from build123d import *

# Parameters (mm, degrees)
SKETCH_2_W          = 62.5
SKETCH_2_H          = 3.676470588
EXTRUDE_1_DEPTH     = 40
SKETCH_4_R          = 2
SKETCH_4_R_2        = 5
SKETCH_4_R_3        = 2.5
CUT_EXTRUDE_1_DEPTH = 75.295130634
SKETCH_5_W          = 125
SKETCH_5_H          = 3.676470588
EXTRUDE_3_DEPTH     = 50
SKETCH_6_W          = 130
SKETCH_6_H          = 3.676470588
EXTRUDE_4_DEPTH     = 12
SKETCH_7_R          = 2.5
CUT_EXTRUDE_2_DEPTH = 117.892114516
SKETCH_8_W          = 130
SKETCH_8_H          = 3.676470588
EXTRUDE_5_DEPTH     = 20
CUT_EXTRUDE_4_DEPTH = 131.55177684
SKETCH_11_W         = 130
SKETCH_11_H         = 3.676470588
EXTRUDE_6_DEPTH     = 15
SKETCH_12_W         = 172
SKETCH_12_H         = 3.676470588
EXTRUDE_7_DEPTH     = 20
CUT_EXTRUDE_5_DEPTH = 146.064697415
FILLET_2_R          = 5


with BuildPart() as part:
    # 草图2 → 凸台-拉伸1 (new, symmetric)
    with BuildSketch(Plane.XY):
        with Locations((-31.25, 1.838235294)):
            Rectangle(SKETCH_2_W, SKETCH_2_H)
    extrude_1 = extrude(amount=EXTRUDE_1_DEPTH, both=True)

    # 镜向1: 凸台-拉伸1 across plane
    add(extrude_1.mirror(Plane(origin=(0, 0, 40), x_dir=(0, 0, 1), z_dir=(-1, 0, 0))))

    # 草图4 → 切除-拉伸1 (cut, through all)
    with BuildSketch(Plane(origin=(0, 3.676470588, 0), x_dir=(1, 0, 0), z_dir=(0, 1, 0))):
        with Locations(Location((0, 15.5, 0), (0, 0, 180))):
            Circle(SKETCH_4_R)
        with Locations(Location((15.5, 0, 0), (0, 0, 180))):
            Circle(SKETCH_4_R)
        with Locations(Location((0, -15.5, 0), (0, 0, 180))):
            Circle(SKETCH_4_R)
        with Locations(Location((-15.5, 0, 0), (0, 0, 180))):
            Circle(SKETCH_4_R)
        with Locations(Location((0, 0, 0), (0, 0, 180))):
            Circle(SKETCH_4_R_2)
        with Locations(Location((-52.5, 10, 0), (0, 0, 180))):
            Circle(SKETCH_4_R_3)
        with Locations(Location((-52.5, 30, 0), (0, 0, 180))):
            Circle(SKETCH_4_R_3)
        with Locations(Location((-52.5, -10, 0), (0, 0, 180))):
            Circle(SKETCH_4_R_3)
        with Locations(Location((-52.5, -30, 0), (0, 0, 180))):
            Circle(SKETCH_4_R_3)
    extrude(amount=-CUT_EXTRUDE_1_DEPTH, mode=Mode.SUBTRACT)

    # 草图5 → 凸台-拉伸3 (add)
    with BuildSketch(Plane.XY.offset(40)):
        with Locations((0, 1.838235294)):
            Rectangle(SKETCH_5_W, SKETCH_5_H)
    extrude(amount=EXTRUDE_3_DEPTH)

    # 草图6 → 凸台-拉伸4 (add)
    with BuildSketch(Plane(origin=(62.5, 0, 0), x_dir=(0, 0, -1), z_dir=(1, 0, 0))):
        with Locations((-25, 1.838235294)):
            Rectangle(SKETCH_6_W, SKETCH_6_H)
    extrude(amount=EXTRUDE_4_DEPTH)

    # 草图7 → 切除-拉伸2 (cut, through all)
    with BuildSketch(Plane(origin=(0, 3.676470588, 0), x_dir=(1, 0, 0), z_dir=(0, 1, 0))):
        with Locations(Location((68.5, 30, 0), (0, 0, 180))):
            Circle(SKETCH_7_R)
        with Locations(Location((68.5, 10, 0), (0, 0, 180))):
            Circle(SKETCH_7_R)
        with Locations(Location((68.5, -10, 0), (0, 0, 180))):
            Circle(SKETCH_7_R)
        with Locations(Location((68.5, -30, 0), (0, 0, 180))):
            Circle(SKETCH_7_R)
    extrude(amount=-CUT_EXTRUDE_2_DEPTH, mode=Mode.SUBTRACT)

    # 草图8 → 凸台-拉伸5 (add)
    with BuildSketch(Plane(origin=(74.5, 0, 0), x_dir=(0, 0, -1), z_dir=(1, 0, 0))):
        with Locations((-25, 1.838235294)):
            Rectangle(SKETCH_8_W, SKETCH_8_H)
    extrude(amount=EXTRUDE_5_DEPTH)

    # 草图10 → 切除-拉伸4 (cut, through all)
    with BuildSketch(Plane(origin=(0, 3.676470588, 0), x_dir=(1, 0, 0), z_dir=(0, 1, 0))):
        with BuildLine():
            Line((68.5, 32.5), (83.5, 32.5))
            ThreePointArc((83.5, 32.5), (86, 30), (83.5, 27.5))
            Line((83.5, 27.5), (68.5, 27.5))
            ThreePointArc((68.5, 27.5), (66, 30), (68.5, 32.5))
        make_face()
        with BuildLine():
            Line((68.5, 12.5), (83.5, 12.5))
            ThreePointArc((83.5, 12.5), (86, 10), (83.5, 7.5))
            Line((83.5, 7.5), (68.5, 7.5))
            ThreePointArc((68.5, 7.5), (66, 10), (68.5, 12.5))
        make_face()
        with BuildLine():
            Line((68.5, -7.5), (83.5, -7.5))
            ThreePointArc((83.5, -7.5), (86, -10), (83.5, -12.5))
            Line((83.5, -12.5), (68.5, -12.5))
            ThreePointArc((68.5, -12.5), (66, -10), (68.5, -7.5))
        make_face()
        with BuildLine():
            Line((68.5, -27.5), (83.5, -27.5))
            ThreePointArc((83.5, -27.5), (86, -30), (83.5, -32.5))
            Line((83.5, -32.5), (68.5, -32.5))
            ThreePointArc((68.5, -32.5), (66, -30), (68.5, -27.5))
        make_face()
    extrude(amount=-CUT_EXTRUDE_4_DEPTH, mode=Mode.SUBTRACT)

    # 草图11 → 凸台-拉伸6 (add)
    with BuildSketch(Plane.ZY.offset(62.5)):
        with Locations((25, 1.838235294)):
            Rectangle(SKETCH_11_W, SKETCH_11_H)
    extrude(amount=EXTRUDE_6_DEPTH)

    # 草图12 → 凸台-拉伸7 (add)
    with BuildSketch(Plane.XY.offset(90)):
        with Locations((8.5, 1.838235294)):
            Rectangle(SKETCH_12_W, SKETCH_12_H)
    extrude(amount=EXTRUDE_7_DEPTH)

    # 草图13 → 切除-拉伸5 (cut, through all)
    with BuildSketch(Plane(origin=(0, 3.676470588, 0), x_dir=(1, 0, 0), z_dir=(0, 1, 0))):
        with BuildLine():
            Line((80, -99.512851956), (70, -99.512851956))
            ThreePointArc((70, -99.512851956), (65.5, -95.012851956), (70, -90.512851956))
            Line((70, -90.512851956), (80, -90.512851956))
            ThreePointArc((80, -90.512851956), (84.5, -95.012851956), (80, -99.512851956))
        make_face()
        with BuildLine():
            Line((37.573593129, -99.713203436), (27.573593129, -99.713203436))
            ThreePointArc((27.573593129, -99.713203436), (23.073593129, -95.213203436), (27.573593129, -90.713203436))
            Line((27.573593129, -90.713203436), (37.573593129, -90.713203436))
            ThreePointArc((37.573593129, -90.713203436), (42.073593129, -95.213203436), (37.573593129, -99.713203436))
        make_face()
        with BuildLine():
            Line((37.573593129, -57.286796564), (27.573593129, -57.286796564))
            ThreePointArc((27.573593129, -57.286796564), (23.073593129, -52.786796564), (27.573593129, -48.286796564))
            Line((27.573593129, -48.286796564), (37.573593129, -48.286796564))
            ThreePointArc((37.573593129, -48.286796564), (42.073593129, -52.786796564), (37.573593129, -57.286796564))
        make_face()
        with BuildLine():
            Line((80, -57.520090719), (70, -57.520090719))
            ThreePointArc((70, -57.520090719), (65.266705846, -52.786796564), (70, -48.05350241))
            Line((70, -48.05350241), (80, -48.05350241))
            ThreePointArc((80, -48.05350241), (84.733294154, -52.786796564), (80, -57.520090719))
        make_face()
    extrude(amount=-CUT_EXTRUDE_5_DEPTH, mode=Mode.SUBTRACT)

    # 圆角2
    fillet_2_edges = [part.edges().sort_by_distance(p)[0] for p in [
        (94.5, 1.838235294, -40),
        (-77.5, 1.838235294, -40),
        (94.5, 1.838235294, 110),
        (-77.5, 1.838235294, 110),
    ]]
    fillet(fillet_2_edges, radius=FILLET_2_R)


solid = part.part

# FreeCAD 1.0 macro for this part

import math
import FreeCAD as App
import Part
import Sketcher


def edges_at(feature, points):
    """Names of the edges that pass closest to the given points."""
    edges = feature.Shape.Edges
    near = lambda p: min(range(len(edges)), key=lambda i: edges[i].distToShape(Part.Vertex(*p))[0])
    return sorted({f"Edge{near(p) + 1}" for p in points})


def add_polygon(sketch, points):
    """Adds a closed chain of lines whose ends are joined by coincident constraints."""
    first, n = sketch.GeometryCount, len(points)
    for a, b in zip(points, points[1:] + points[:1]):
        sketch.addGeometry(Part.LineSegment(App.Vector(*a, 0), App.Vector(*b, 0)), False)
    for i in range(n):
        sketch.addConstraint(Sketcher.Constraint("Coincident", first + i, 2, first + (i + 1) % n, 1))

doc = App.newDocument("Part")
body = doc.addObject("PartDesign::Body", "Body")

# Sketch on XY plane
sketch1 = body.newObject("Sketcher::SketchObject", "Sketch")
sketch1.AttachmentSupport = (doc.getObject("XY_Plane"), [""])
sketch1.MapMode = "FlatFace"
add_polygon(sketch1, [(-62.5, 3.7), (-62.5, 0), (0, 0), (0, 3.7)])  # lines 0-3
sketch1.addConstraint([
    Sketcher.Constraint("Vertical", 0),
    Sketcher.Constraint("Horizontal", 1),
    Sketcher.Constraint("Vertical", 2),
    Sketcher.Constraint("Horizontal", 3),
    Sketcher.Constraint("Coincident", 1, 2, -1, 1),
    Sketcher.Constraint("DistanceX", 1, 1, 1, 2, 62.5),
    Sketcher.Constraint("DistanceY", 0, 2, 0, 1, 3.676471),
])
pad1 = body.newObject("PartDesign::Pad", "Pad")
pad1.Profile = sketch1
pad1.Length = 80
pad1.Midplane = True
doc.recompute()

mirrored = body.newObject("PartDesign::Mirrored", "Mirrored")
mirrored.Originals = [pad1]
mirrored.MirrorPlane = (doc.getObject("YZ_Plane"), [""])
body.Tip = mirrored

# Sketch on XZ plane
sketch2 = body.newObject("Sketcher::SketchObject", "Sketch001")
sketch2.AttachmentSupport = (doc.getObject("XZ_Plane"), [""])
sketch2.MapMode = "FlatFace"
sketch2.AttachmentOffset = App.Placement(App.Vector(0, 0, -3.676471), App.Rotation())
sketch2.addGeometry([
    Part.Circle(App.Vector(0, -15.5, 0), App.Vector(0, 0, 1), 2),  # 0
    Part.Circle(App.Vector(15.5, 0, 0), App.Vector(0, 0, 1), 2),  # 1
    Part.Circle(App.Vector(0, 15.5, 0), App.Vector(0, 0, 1), 2),  # 2
    Part.Circle(App.Vector(-15.5, 0, 0), App.Vector(0, 0, 1), 2),  # 3
    Part.Circle(App.Vector(0, 0, 0), App.Vector(0, 0, 1), 5),  # 4
    Part.Circle(App.Vector(-52.5, -10, 0), App.Vector(0, 0, 1), 2.5),  # 5
    Part.Circle(App.Vector(-52.5, -30, 0), App.Vector(0, 0, 1), 2.5),  # 6
    Part.Circle(App.Vector(-52.5, 10, 0), App.Vector(0, 0, 1), 2.5),  # 7
    Part.Circle(App.Vector(-52.5, 30, 0), App.Vector(0, 0, 1), 2.5),  # 8
], False)
sketch2.addConstraint([
    Sketcher.Constraint("Coincident", 4, 3, -1, 1),
    Sketcher.Constraint("Equal", 0, 1),
    Sketcher.Constraint("Equal", 1, 2),
    Sketcher.Constraint("Equal", 2, 3),
    Sketcher.Constraint("Equal", 5, 6),
    Sketcher.Constraint("Equal", 6, 7),
    Sketcher.Constraint("Equal", 7, 8),
    Sketcher.Constraint("Symmetric", 0, 3, 2, 3, -1, 1),
    Sketcher.Constraint("Symmetric", 1, 3, 3, 3, -1, 1),
    Sketcher.Constraint("Symmetric", 5, 3, 7, 3, -1),
    Sketcher.Constraint("Symmetric", 6, 3, 8, 3, -1),
    Sketcher.Constraint("PointOnObject", 0, 3, -2),
    Sketcher.Constraint("PointOnObject", 1, 3, -1),
    Sketcher.Constraint("Vertical", 5, 3, 6, 3),
    Sketcher.Constraint("Diameter", 0, 4.0),
    Sketcher.Constraint("Diameter", 4, 10.0),
    Sketcher.Constraint("Diameter", 5, 5.0),
    Sketcher.Constraint("DistanceY", 5, 3, -1, 1, 10.0),
    Sketcher.Constraint("DistanceY", 6, 3, -1, 1, 30.0),
    Sketcher.Constraint("DistanceY", 0, 3, 2, 3, 31.0),
    Sketcher.Constraint("DistanceX", 3, 3, 1, 3, 31.0),
    Sketcher.Constraint("DistanceX", 5, 3, 3, 3, 37.0),
])
pocket1 = body.newObject("PartDesign::Pocket", "Pocket")
pocket1.Profile = sketch2
pocket1.Type = "ThroughAll"
pocket1.Reversed = True

# Sketch on XY plane
sketch3 = body.newObject("Sketcher::SketchObject", "Sketch002")
sketch3.AttachmentSupport = (doc.getObject("XY_Plane"), [""])
sketch3.MapMode = "FlatFace"
sketch3.AttachmentOffset = App.Placement(App.Vector(0, 0, 40), App.Rotation())
add_polygon(sketch3, [(-62.5, 3.7), (-62.5, 0), (62.5, 0), (62.5, 3.7)])  # lines 0-3
sketch3.addConstraint([
    Sketcher.Constraint("Vertical", 0),
    Sketcher.Constraint("Horizontal", 1),
    Sketcher.Constraint("Vertical", 2),
    Sketcher.Constraint("Horizontal", 3),
    Sketcher.Constraint("Symmetric", 0, 2, 1, 2, -1, 1),
    Sketcher.Constraint("DistanceX", 1, 1, 1, 2, 125.0),
    Sketcher.Constraint("DistanceY", 0, 2, 0, 1, 3.676471),
])
pad2 = body.newObject("PartDesign::Pad", "Pad001")
pad2.Profile = sketch3
pad2.Length = 50

# Sketch on YZ plane
sketch4 = body.newObject("Sketcher::SketchObject", "Sketch003")
sketch4.AttachmentSupport = (doc.getObject("YZ_Plane"), [""])
sketch4.MapMode = "FlatFace"
sketch4.AttachmentOffset = App.Placement(App.Vector(0, 0, 62.5), App.Rotation())
add_polygon(sketch4, [(3.7, 90), (0, 90), (0, -40), (3.7, -40)])  # lines 0-3
sketch4.addConstraint([
    Sketcher.Constraint("Horizontal", 0),
    Sketcher.Constraint("Vertical", 1),
    Sketcher.Constraint("Horizontal", 2),
    Sketcher.Constraint("Vertical", 3),
    Sketcher.Constraint("PointOnObject", 0, 2, -2),
    Sketcher.Constraint("DistanceY", 1, 2, 1, 1, 130.0),
    Sketcher.Constraint("DistanceY", -1, 1, 0, 2, 90.0),
    Sketcher.Constraint("DistanceX", 0, 2, 0, 1, 3.676471),
])
pad3 = body.newObject("PartDesign::Pad", "Pad002")
pad3.Profile = sketch4
pad3.Length = 12

# Sketch on XZ plane
sketch5 = body.newObject("Sketcher::SketchObject", "Sketch004")
sketch5.AttachmentSupport = (doc.getObject("XZ_Plane"), [""])
sketch5.MapMode = "FlatFace"
sketch5.AttachmentOffset = App.Placement(App.Vector(0, 0, -3.676471), App.Rotation())
sketch5.addGeometry([
    Part.Circle(App.Vector(68.5, -30, 0), App.Vector(0, 0, 1), 2.5),
    Part.Circle(App.Vector(68.5, -10, 0), App.Vector(0, 0, 1), 2.5),
    Part.Circle(App.Vector(68.5, 10, 0), App.Vector(0, 0, 1), 2.5),
    Part.Circle(App.Vector(68.5, 30, 0), App.Vector(0, 0, 1), 2.5),
], False)
sketch5.addConstraint([
    Sketcher.Constraint("Equal", 0, 1),
    Sketcher.Constraint("Equal", 1, 2),
    Sketcher.Constraint("Equal", 2, 3),
    Sketcher.Constraint("Symmetric", 1, 3, 2, 3, -1),
    Sketcher.Constraint("Symmetric", 0, 3, 3, 3, -1),
    Sketcher.Constraint("Vertical", 0, 3, 1, 3),
    Sketcher.Constraint("Diameter", 0, 5.0),
    Sketcher.Constraint("DistanceY", 0, 3, -1, 1, 30.0),
    Sketcher.Constraint("DistanceY", 1, 3, -1, 1, 10.0),
    Sketcher.Constraint("DistanceX", -1, 1, 0, 3, 68.5),
])
pocket2 = body.newObject("PartDesign::Pocket", "Pocket001")
pocket2.Profile = sketch5
pocket2.Type = "ThroughAll"
pocket2.Reversed = True

# Sketch on YZ plane
sketch6 = body.newObject("Sketcher::SketchObject", "Sketch005")
sketch6.AttachmentSupport = (doc.getObject("YZ_Plane"), [""])
sketch6.MapMode = "FlatFace"
sketch6.AttachmentOffset = App.Placement(App.Vector(0, 0, 74.5), App.Rotation())
add_polygon(sketch6, [(3.7, 90), (0, 90), (0, -40), (3.7, -40)])  # lines 0-3
sketch6.addConstraint([
    Sketcher.Constraint("Horizontal", 0),
    Sketcher.Constraint("Vertical", 1),
    Sketcher.Constraint("Horizontal", 2),
    Sketcher.Constraint("Vertical", 3),
    Sketcher.Constraint("PointOnObject", 0, 2, -2),
    Sketcher.Constraint("DistanceY", 1, 2, 1, 1, 130.0),
    Sketcher.Constraint("DistanceY", -1, 1, 0, 2, 90.0),
    Sketcher.Constraint("DistanceX", 0, 2, 0, 1, 3.676471),
])
pad4 = body.newObject("PartDesign::Pad", "Pad003")
pad4.Profile = sketch6
pad4.Length = 20

# Sketch on XZ plane
sketch7 = body.newObject("Sketcher::SketchObject", "Sketch006")
sketch7.AttachmentSupport = (doc.getObject("XZ_Plane"), [""])
sketch7.MapMode = "FlatFace"
sketch7.AttachmentOffset = App.Placement(App.Vector(0, 0, -3.676471), App.Rotation())
sketch7.addGeometry([
    Part.LineSegment(App.Vector(83.5, -32.5, 0), App.Vector(68.5, -32.5, 0)),  # 0
    Part.ArcOfCircle(Part.Circle(App.Vector(68.5, -30, 0), App.Vector(0, 0, 1), 2.5), math.radians(90), math.radians(270)),  # 1
    Part.LineSegment(App.Vector(68.5, -27.5, 0), App.Vector(83.5, -27.5, 0)),  # 2
    Part.ArcOfCircle(Part.Circle(App.Vector(83.5, -30, 0), App.Vector(0, 0, 1), 2.5), math.radians(-90), math.radians(90)),  # 3
    Part.LineSegment(App.Vector(83.5, -12.5, 0), App.Vector(68.5, -12.5, 0)),  # 4
    Part.ArcOfCircle(Part.Circle(App.Vector(68.5, -10, 0), App.Vector(0, 0, 1), 2.5), math.radians(90), math.radians(270)),  # 5
    Part.LineSegment(App.Vector(68.5, -7.5, 0), App.Vector(83.5, -7.5, 0)),  # 6
    Part.ArcOfCircle(Part.Circle(App.Vector(83.5, -10, 0), App.Vector(0, 0, 1), 2.5), math.radians(-90), math.radians(90)),  # 7
    Part.LineSegment(App.Vector(83.5, 7.5, 0), App.Vector(68.5, 7.5, 0)),  # 8
    Part.ArcOfCircle(Part.Circle(App.Vector(68.5, 10, 0), App.Vector(0, 0, 1), 2.5), math.radians(90), math.radians(270)),  # 9
    Part.LineSegment(App.Vector(68.5, 12.5, 0), App.Vector(83.5, 12.5, 0)),  # 10
    Part.ArcOfCircle(Part.Circle(App.Vector(83.5, 10, 0), App.Vector(0, 0, 1), 2.5), math.radians(-90), math.radians(90)),  # 11
    Part.LineSegment(App.Vector(83.5, 27.5, 0), App.Vector(68.5, 27.5, 0)),  # 12
    Part.ArcOfCircle(Part.Circle(App.Vector(68.5, 30, 0), App.Vector(0, 0, 1), 2.5), math.radians(90), math.radians(270)),  # 13
    Part.LineSegment(App.Vector(68.5, 32.5, 0), App.Vector(83.5, 32.5, 0)),  # 14
    Part.ArcOfCircle(Part.Circle(App.Vector(83.5, 30, 0), App.Vector(0, 0, 1), 2.5), math.radians(-90), math.radians(90)),  # 15
], False)
sketch7.addConstraint([
    Sketcher.Constraint("Tangent", 0, 2, 1, 2),
    Sketcher.Constraint("Tangent", 1, 1, 2, 1),
    Sketcher.Constraint("Tangent", 2, 2, 3, 2),
    Sketcher.Constraint("Tangent", 3, 1, 0, 1),
    Sketcher.Constraint("Tangent", 4, 2, 5, 2),
    Sketcher.Constraint("Tangent", 5, 1, 6, 1),
    Sketcher.Constraint("Tangent", 6, 2, 7, 2),
    Sketcher.Constraint("Tangent", 7, 1, 4, 1),
    Sketcher.Constraint("Tangent", 8, 2, 9, 2),
    Sketcher.Constraint("Tangent", 9, 1, 10, 1),
    Sketcher.Constraint("Tangent", 10, 2, 11, 2),
    Sketcher.Constraint("Tangent", 11, 1, 8, 1),
    Sketcher.Constraint("Tangent", 12, 2, 13, 2),
    Sketcher.Constraint("Tangent", 13, 1, 14, 1),
    Sketcher.Constraint("Tangent", 14, 2, 15, 2),
    Sketcher.Constraint("Tangent", 15, 1, 12, 1),
    Sketcher.Constraint("Horizontal", 0),
    Sketcher.Constraint("Horizontal", 2),
    Sketcher.Constraint("Horizontal", 4),
    Sketcher.Constraint("Horizontal", 6),
    Sketcher.Constraint("Horizontal", 8),
    Sketcher.Constraint("Horizontal", 10),
    Sketcher.Constraint("Horizontal", 12),
    Sketcher.Constraint("Horizontal", 14),
    Sketcher.Constraint("Equal", 3, 5),
    Sketcher.Constraint("Equal", 7, 9),
    Sketcher.Constraint("Equal", 11, 13),
    Sketcher.Constraint("Symmetric", 5, 3, 9, 3, -1),
    Sketcher.Constraint("Symmetric", 1, 3, 13, 3, -1),
    Sketcher.Constraint("Vertical", 1, 3, 5, 3),
    Sketcher.Constraint("Vertical", 3, 3, 7, 3),
    Sketcher.Constraint("Vertical", 7, 3, 11, 3),
    Sketcher.Constraint("Vertical", 11, 3, 15, 3),
    Sketcher.Constraint("Radius", 1, 2.5),
    Sketcher.Constraint("DistanceX", 0, 2, 0, 1, 15.0),
    Sketcher.Constraint("DistanceY", 1, 3, -1, 1, 30.0),
    Sketcher.Constraint("DistanceY", 5, 3, -1, 1, 10.0),
    Sketcher.Constraint("DistanceX", -1, 1, 1, 3, 68.5),
])
pocket3 = body.newObject("PartDesign::Pocket", "Pocket002")
pocket3.Profile = sketch7
pocket3.Type = "ThroughAll"
pocket3.Reversed = True

# Sketch on YZ plane
sketch8 = body.newObject("Sketcher::SketchObject", "Sketch007")
sketch8.AttachmentSupport = (doc.getObject("YZ_Plane"), [""])
sketch8.MapMode = "FlatFace"
sketch8.AttachmentOffset = App.Placement(App.Vector(0, 0, -62.5), App.Rotation())
add_polygon(sketch8, [(3.7, -40), (0, -40), (0, 90), (3.7, 90)])  # lines 0-3
sketch8.addConstraint([
    Sketcher.Constraint("Horizontal", 0),
    Sketcher.Constraint("Vertical", 1),
    Sketcher.Constraint("Horizontal", 2),
    Sketcher.Constraint("Vertical", 3),
    Sketcher.Constraint("PointOnObject", 0, 2, -2),
    Sketcher.Constraint("DistanceY", 1, 1, 1, 2, 130.0),
    Sketcher.Constraint("DistanceY", 0, 2, -1, 1, 40.0),
    Sketcher.Constraint("DistanceX", 0, 2, 0, 1, 3.676471),
])
pad5 = body.newObject("PartDesign::Pad", "Pad004")
pad5.Profile = sketch8
pad5.Length = 15
pad5.Reversed = True

# Sketch on XY plane
sketch9 = body.newObject("Sketcher::SketchObject", "Sketch008")
sketch9.AttachmentSupport = (doc.getObject("XY_Plane"), [""])
sketch9.MapMode = "FlatFace"
sketch9.AttachmentOffset = App.Placement(App.Vector(0, 0, 90), App.Rotation())
add_polygon(sketch9, [(-77.5, 3.7), (-77.5, 0), (94.5, 0), (94.5, 3.7)])  # lines 0-3
sketch9.addConstraint([
    Sketcher.Constraint("Vertical", 0),
    Sketcher.Constraint("Horizontal", 1),
    Sketcher.Constraint("Vertical", 2),
    Sketcher.Constraint("Horizontal", 3),
    Sketcher.Constraint("PointOnObject", 0, 2, -1),
    Sketcher.Constraint("DistanceX", 1, 1, 1, 2, 172.0),
    Sketcher.Constraint("DistanceX", 0, 2, -1, 1, 77.5),
    Sketcher.Constraint("DistanceY", 0, 2, 0, 1, 3.676471),
])
pad6 = body.newObject("PartDesign::Pad", "Pad005")
pad6.Profile = sketch9
pad6.Length = 20

# Sketch on XZ plane
sketch10 = body.newObject("Sketcher::SketchObject", "Sketch009")
sketch10.AttachmentSupport = (doc.getObject("XZ_Plane"), [""])
sketch10.MapMode = "FlatFace"
sketch10.AttachmentOffset = App.Placement(App.Vector(0, 0, -3.676471), App.Rotation())
sketch10.addGeometry([
    Part.LineSegment(App.Vector(70, 99.5, 0), App.Vector(80, 99.5, 0)),  # 0
    Part.ArcOfCircle(Part.Circle(App.Vector(80, 95, 0), App.Vector(0, 0, 1), 4.5), math.radians(-90), math.radians(90)),  # 1
    Part.LineSegment(App.Vector(80, 90.5, 0), App.Vector(70, 90.5, 0)),  # 2
    Part.ArcOfCircle(Part.Circle(App.Vector(70, 95, 0), App.Vector(0, 0, 1), 4.5), math.radians(90), math.radians(270)),  # 3
    Part.LineSegment(App.Vector(27.6, 99.7, 0), App.Vector(37.6, 99.7, 0)),  # 4
    Part.ArcOfCircle(Part.Circle(App.Vector(37.6, 95.2, 0), App.Vector(0, 0, 1), 4.5), math.radians(-90), math.radians(90)),  # 5
    Part.LineSegment(App.Vector(37.6, 90.7, 0), App.Vector(27.6, 90.7, 0)),  # 6
    Part.ArcOfCircle(Part.Circle(App.Vector(27.6, 95.2, 0), App.Vector(0, 0, 1), 4.5), math.radians(90), math.radians(270)),  # 7
    Part.LineSegment(App.Vector(27.6, 57.3, 0), App.Vector(37.6, 57.3, 0)),  # 8
    Part.ArcOfCircle(Part.Circle(App.Vector(37.6, 52.8, 0), App.Vector(0, 0, 1), 4.5), math.radians(-90), math.radians(90)),  # 9
    Part.LineSegment(App.Vector(37.6, 48.3, 0), App.Vector(27.6, 48.3, 0)),  # 10
    Part.ArcOfCircle(Part.Circle(App.Vector(27.6, 52.8, 0), App.Vector(0, 0, 1), 4.5), math.radians(90), math.radians(270)),  # 11
    Part.LineSegment(App.Vector(70, 57.5, 0), App.Vector(80, 57.5, 0)),  # 12
    Part.ArcOfCircle(Part.Circle(App.Vector(80, 52.8, 0), App.Vector(0, 0, 1), 4.7), math.radians(-90), math.radians(90)),  # 13
    Part.LineSegment(App.Vector(80, 48.1, 0), App.Vector(70, 48.1, 0)),  # 14
    Part.ArcOfCircle(Part.Circle(App.Vector(70, 52.8, 0), App.Vector(0, 0, 1), 4.7), math.radians(90), math.radians(270)),  # 15
], False)
sketch10.addConstraint([
    Sketcher.Constraint("Tangent", 0, 2, 1, 2),
    Sketcher.Constraint("Tangent", 1, 1, 2, 1),
    Sketcher.Constraint("Tangent", 2, 2, 3, 2),
    Sketcher.Constraint("Tangent", 3, 1, 0, 1),
    Sketcher.Constraint("Tangent", 4, 2, 5, 2),
    Sketcher.Constraint("Tangent", 5, 1, 6, 1),
    Sketcher.Constraint("Tangent", 6, 2, 7, 2),
    Sketcher.Constraint("Tangent", 7, 1, 4, 1),
    Sketcher.Constraint("Tangent", 8, 2, 9, 2),
    Sketcher.Constraint("Tangent", 9, 1, 10, 1),
    Sketcher.Constraint("Tangent", 10, 2, 11, 2),
    Sketcher.Constraint("Tangent", 11, 1, 8, 1),
    Sketcher.Constraint("Tangent", 12, 2, 13, 2),
    Sketcher.Constraint("Tangent", 13, 1, 14, 1),
    Sketcher.Constraint("Tangent", 14, 2, 15, 2),
    Sketcher.Constraint("Tangent", 15, 1, 12, 1),
    Sketcher.Constraint("Horizontal", 0),
    Sketcher.Constraint("Horizontal", 2),
    Sketcher.Constraint("Horizontal", 4),
    Sketcher.Constraint("Horizontal", 6),
    Sketcher.Constraint("Horizontal", 8),
    Sketcher.Constraint("Horizontal", 10),
    Sketcher.Constraint("Horizontal", 12),
    Sketcher.Constraint("Horizontal", 14),
    Sketcher.Constraint("Equal", 3, 5),
    Sketcher.Constraint("Equal", 7, 9),
    Sketcher.Constraint("Horizontal", 11, 3, 13, 3),
    Sketcher.Constraint("Vertical", 5, 3, 9, 3),
    Sketcher.Constraint("Vertical", 7, 3, 11, 3),
    Sketcher.Constraint("Vertical", 1, 3, 13, 3),
    Sketcher.Constraint("Vertical", 3, 3, 15, 3),
    Sketcher.Constraint("Equal", 2, 4),
    Sketcher.Constraint("Radius", 1, 4.5),
    Sketcher.Constraint("DistanceX", 0, 1, 0, 2, 10.0),
    Sketcher.Constraint("DistanceX", -1, 1, 1, 3, 80.0),
    Sketcher.Constraint("Radius", 13, 4.733294),
    Sketcher.Constraint("DistanceY", -1, 1, 1, 3, 95.012852),
    Sketcher.Constraint("DistanceY", -1, 1, 12, 2, 57.520091),
    Sketcher.Constraint("DistanceY", 3, 3, 5, 3, 0.200351),
    Sketcher.Constraint("DistanceX", -1, 1, 5, 3, 37.573593),
])
pocket4 = body.newObject("PartDesign::Pocket", "Pocket003")
pocket4.Profile = sketch10
pocket4.Type = "ThroughAll"
pocket4.Reversed = True
doc.recompute()

fillet = body.newObject("PartDesign::Fillet", "Fillet")
fillet.Base = (pocket4, edges_at(pocket4, [
    (94.5, 1.838, -40),
    (-77.5, 1.838, -40),
    (94.5, 1.838, 110),
    (-77.5, 1.838, 110),
]))
fillet.Radius = 5

doc.recompute()
